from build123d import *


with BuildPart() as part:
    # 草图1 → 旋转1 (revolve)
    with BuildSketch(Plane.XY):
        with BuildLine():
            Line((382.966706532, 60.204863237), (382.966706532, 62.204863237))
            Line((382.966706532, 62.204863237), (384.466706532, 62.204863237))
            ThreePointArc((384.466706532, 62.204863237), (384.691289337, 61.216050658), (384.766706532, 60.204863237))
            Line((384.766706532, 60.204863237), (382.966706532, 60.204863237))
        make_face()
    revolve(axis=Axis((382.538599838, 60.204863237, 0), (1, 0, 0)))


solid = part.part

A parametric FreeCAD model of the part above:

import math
import FreeCAD as App
import Part
import Sketcher
from FreeCAD import Vector
Q = App.Units.Quantity

doc = App.newDocument("Part")
body = doc.addObject("PartDesign::Body", "Body")

sketch1 = body.newObject("Sketcher::SketchObject", "Sketch")
sketch1.AttachmentSupport = (doc.getObject("XY_Plane"), [""])
sketch1.MapMode = "FlatFace"
sketch1.addGeometry([
    Part.LineSegment(Vector(383, 62.2, 0), Vector(383, 60.2, 0)),
    Part.LineSegment(Vector(383, 60.2, 0), Vector(384.8, 60.2, 0)),
    Part.ArcOfCircle(Part.Circle(Vector(378, 60.2, 0), Vector(0, 0, 1), 6.8), math.radians(0), math.radians(17.06)),
    Part.LineSegment(Vector(384.5, 62.2, 0), Vector(383, 62.2, 0)),
], False)
sketch1.addGeometry(Part.LineSegment(Vector(378, 60.2, 0), Vector(384.8, 60.2, 0)), True)
sketch1.addConstraint([
    Sketcher.Constraint("Coincident", 0, 2, 1, 1),
    Sketcher.Constraint("Coincident", 1, 2, 2, 1),
    Sketcher.Constraint("Coincident", 2, 2, 3, 1),
    Sketcher.Constraint("Coincident", 3, 2, 0, 1),
    Sketcher.Constraint("Vertical", 0),
    Sketcher.Constraint("Horizontal", 1),
    Sketcher.Constraint("Horizontal", 3),
    Sketcher.Constraint("Horizontal", 4),
    Sketcher.Constraint("Coincident", 4, 1, 2, 3),
    Sketcher.Constraint("Coincident", 4, 2, 1, 2),
    Sketcher.Constraint("DistanceY", 0, 2, 0, 1, Q("2 mm")),
    Sketcher.Constraint("DistanceX", 1, 1, 1, 2, Q("1.8 mm")),
    Sketcher.Constraint("DistanceX", 3, 2, 3, 1, Q("1.5 mm")),
    Sketcher.Constraint("DistanceX", -1, 1, 2, 3, Q("377.95004 mm")),
    Sketcher.Constraint("DistanceY", -1, 1, 2, 3, Q("60.204863 mm")),
])
revolution = body.newObject("PartDesign::Revolution", "Revolution")
revolution.Profile = sketch1
revolution.ReferenceAxis = (sketch1, ["Axis0"])
revolution.Angle = 360

doc.recompute()
